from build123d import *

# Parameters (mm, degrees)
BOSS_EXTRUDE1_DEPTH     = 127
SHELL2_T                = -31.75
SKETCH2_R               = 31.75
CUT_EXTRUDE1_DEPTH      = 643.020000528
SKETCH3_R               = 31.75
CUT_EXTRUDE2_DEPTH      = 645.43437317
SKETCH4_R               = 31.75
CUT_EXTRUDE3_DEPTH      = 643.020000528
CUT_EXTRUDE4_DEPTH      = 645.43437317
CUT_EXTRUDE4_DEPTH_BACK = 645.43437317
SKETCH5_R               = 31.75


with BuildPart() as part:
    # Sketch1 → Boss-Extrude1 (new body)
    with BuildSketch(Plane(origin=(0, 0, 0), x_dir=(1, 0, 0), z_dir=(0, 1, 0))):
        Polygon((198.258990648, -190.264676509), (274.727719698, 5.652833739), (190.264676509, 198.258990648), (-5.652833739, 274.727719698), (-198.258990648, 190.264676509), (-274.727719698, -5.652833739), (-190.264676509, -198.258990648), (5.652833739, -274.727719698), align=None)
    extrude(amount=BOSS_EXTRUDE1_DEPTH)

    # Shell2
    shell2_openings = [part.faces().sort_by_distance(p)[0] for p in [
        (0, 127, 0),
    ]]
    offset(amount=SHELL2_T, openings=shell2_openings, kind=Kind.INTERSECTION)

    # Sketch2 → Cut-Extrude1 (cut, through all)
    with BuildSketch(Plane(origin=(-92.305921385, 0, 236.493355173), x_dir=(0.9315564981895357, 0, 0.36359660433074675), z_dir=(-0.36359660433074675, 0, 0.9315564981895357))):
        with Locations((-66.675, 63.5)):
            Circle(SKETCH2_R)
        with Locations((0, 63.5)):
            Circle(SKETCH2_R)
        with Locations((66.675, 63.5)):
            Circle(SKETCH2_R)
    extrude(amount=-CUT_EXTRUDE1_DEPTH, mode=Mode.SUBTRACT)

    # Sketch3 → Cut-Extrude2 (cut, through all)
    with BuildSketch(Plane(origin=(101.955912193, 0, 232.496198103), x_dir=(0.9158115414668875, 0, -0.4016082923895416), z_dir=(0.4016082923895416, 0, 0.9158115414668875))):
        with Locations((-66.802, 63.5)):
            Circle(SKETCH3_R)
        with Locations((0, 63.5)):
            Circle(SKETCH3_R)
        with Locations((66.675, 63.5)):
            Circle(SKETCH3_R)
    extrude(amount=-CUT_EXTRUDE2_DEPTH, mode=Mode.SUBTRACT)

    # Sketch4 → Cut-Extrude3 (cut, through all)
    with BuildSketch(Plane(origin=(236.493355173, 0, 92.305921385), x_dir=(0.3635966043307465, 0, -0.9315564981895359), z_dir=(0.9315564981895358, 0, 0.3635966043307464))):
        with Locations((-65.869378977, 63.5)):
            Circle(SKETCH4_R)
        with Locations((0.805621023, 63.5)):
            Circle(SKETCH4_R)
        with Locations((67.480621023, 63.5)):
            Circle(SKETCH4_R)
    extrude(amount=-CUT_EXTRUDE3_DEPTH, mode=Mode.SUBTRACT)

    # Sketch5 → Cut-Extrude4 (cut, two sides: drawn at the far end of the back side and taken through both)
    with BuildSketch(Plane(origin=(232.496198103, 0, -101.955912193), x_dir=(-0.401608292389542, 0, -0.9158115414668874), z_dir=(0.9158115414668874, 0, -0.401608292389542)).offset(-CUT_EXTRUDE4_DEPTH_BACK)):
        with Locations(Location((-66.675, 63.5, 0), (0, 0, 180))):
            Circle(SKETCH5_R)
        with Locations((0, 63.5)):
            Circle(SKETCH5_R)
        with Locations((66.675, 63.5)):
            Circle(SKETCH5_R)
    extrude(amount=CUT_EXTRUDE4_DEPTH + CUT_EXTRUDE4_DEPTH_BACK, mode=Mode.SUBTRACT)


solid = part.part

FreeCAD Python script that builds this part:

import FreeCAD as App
import Part
import Sketcher

V = App.Vector
Q = App.Units.Quantity


def faces_at(feature, points):
    """Names of the faces that lie closest to the given points."""
    faces = feature.Shape.Faces
    near = lambda p: min(range(len(faces)), key=lambda i: faces[i].distToShape(Part.Vertex(*p))[0])
    return sorted({f"Face{near(p) + 1}" for p in points})


def add_polygon(sketch, points):
    """Adds a closed chain of lines whose ends are joined by coincident constraints."""
    first, n = sketch.GeometryCount, len(points)
    for a, b in zip(points, points[1:] + points[:1]):
        sketch.addGeometry(Part.LineSegment(App.Vector(*a, 0), App.Vector(*b, 0)), False)
    for i in range(n):
        sketch.addConstraint(Sketcher.Constraint("Coincident", first + i, 2, first + (i + 1) % n, 1))

doc = App.newDocument("Part")
body = doc.addObject("PartDesign::Body", "Body")

# Sketch on XZ plane
sketch1 = body.newObject("Sketcher::SketchObject", "Sketch")
sketch1.AttachmentSupport = (doc.getObject("XZ_Plane"), [""])
sketch1.MapMode = "FlatFace"
add_polygon(sketch1, [(198, 190), (275, -6), (190, -198), (-6, -275), (-198, -190), (-275, 6), (-190, 198), (6, 275)])  # lines 0-7
sketch1.addConstraint([
    Sketcher.Constraint("Symmetric", 0, 2, 4, 2, -1, 1),
    Sketcher.Constraint("Symmetric", 1, 2, 5, 2, -1, 1),
    Sketcher.Constraint("Symmetric", 2, 2, 6, 2, -1, 1),
    Sketcher.Constraint("Symmetric", 3, 2, 7, 2, -1, 1),
    Sketcher.Constraint("Perpendicular", 0, 2),
    Sketcher.Constraint("Perpendicular", 1, 3),
    Sketcher.Constraint("Equal", 0, 1),
    Sketcher.Constraint("Equal", 1, 2),
    Sketcher.Constraint("Equal", 2, 3),
    Sketcher.Constraint("Distance", 0, Q("8.28 in")),
    Sketcher.Constraint("DistanceX", -1, 1, 0, 2, Q("274.72772 mm")),
    Sketcher.Constraint("DistanceY", 1, 2, -1, 1, Q("198.258991 mm")),
])
pad1 = body.newObject("PartDesign::Pad", "Pad")
pad1.Profile = sketch1
pad1.Length = Q("5 in")
pad1.Reversed = True
doc.recompute()

thickness = body.newObject("PartDesign::Thickness", "Thickness")
thickness.Base = (pad1, faces_at(pad1, [(0, 127, 0)]))
thickness.Value = Q("1.25 in")
thickness.Reversed = True
thickness.Join = "Intersection"

# Sketch on an angled plane
sketch2 = body.newObject("Sketcher::SketchObject", "Sketch001")
sketch2.Placement = App.Placement(V(-92.305921, 0, 236.493355), App.Rotation(V(0.931556498, 0, 0.363596604), V(0, 0.999999999, 0), V(-0.363596604, 0, 0.931556498), "ZXY"))
sketch2.addGeometry([
    Part.Circle(V(-67, 63, 0), V(0, 0, 1), 32),
    Part.Circle(V(0, 63, 0), V(0, 0, 1), 32),
    Part.Circle(V(67, 63, 0), V(0, 0, 1), 32),
], False)
sketch2.addConstraint([
    Sketcher.Constraint("Equal", 0, 1),
    Sketcher.Constraint("Equal", 1, 2),
    Sketcher.Constraint("Symmetric", 0, 3, 2, 3, -2),
    Sketcher.Constraint("PointOnObject", 1, 3, -2),
    Sketcher.Constraint("Horizontal", 0, 3, 1, 3),
    Sketcher.Constraint("Diameter", 0, Q("2.5 in")),
    Sketcher.Constraint("DistanceY", -1, 1, 0, 3, Q("2.5 in")),
    Sketcher.Constraint("DistanceX", 0, 3, 2, 3, Q("5.25 in")),
])
pocket1 = body.newObject("PartDesign::Pocket", "Pocket")
pocket1.Profile = sketch2
pocket1.Type = "ThroughAll"

# Sketch on an angled plane
sketch3 = body.newObject("Sketcher::SketchObject", "Sketch002")
sketch3.Placement = App.Placement(V(101.955912, 0, 232.496198), App.Rotation(V(0.915811541, 0, -0.401608292), V(0, 0.999999999, 0), V(0.401608292, 0, 0.915811541), "ZXY"))
sketch3.addGeometry([
    Part.Circle(V(-67, 63, 0), V(0, 0, 1), 32),
    Part.Circle(V(0, 63, 0), V(0, 0, 1), 32),
    Part.Circle(V(67, 63, 0), V(0, 0, 1), 32),
], False)
sketch3.addConstraint([
    Sketcher.Constraint("Equal", 0, 1),
    Sketcher.Constraint("Equal", 1, 2),
    Sketcher.Constraint("PointOnObject", 1, 3, -2),
    Sketcher.Constraint("Horizontal", 0, 3, 1, 3),
    Sketcher.Constraint("Horizontal", 1, 3, 2, 3),
    Sketcher.Constraint("Diameter", 0, Q("2.5 in")),
    Sketcher.Constraint("DistanceY", -1, 1, 0, 3, Q("2.5 in")),
    Sketcher.Constraint("DistanceX", 0, 3, -1, 1, Q("2.63 in")),
    Sketcher.Constraint("DistanceX", -1, 1, 2, 3, Q("2.625 in")),
])
pocket2 = body.newObject("PartDesign::Pocket", "Pocket001")
pocket2.Profile = sketch3
pocket2.Type = "ThroughAll"

# Sketch on an angled plane
sketch4 = body.newObject("Sketcher::SketchObject", "Sketch003")
sketch4.Placement = App.Placement(V(236.493355, 0, 92.305921), App.Rotation(V(0.363596604, 0, -0.931556498), V(0, 0.999999999, 0), V(0.931556498, 0, 0.363596604), "ZXY"))
sketch4.addGeometry([
    Part.Circle(V(-66, 63, 0), V(0, 0, 1), 32),
    Part.Circle(V(1, 63, 0), V(0, 0, 1), 32),
    Part.Circle(V(67, 63, 0), V(0, 0, 1), 32),
], False)
sketch4.addConstraint([
    Sketcher.Constraint("Equal", 0, 1),
    Sketcher.Constraint("Equal", 1, 2),
    Sketcher.Constraint("Horizontal", 0, 3, 1, 3),
    Sketcher.Constraint("Horizontal", 1, 3, 2, 3),
    Sketcher.Constraint("Diameter", 0, Q("2.5 in")),
    Sketcher.Constraint("DistanceY", -1, 1, 0, 3, Q("2.5 in")),
    Sketcher.Constraint("DistanceX", 0, 3, 2, 3, Q("5.25 in")),
    Sketcher.Constraint("DistanceX", 0, 3, 1, 3, Q("2.625 in")),
    Sketcher.Constraint("DistanceX", 0, 3, -1, 1, Q("65.869379 mm")),
])
pocket3 = body.newObject("PartDesign::Pocket", "Pocket002")
pocket3.Profile = sketch4
pocket3.Type = "ThroughAll"

# Sketch on an angled plane
sketch5 = body.newObject("Sketcher::SketchObject", "Sketch004")
sketch5.Placement = App.Placement(V(232.496198, 0, -101.955912), App.Rotation(V(-0.401608292, 0, -0.915811541), V(0, 0.999999999, 0), V(0.915811541, 0, -0.401608292), "ZXY"))
sketch5.addGeometry([
    Part.Circle(V(-67, 63, 0), V(0, 0, 1), 32),
    Part.Circle(V(0, 63, 0), V(0, 0, 1), 32),
    Part.Circle(V(67, 63, 0), V(0, 0, 1), 32),
], False)
sketch5.addConstraint([
    Sketcher.Constraint("Equal", 0, 1),
    Sketcher.Constraint("Equal", 1, 2),
    Sketcher.Constraint("Symmetric", 0, 3, 2, 3, -2),
    Sketcher.Constraint("PointOnObject", 1, 3, -2),
    Sketcher.Constraint("Horizontal", 0, 3, 1, 3),
    Sketcher.Constraint("Diameter", 0, Q("2.5 in")),
    Sketcher.Constraint("DistanceY", -1, 1, 0, 3, Q("2.5 in")),
    Sketcher.Constraint("DistanceX", 0, 3, 2, 3, Q("5.25 in")),
])
pocket4 = body.newObject("PartDesign::Pocket", "Pocket003")
pocket4.Profile = sketch5
pocket4.Type = "ThroughAll"
pocket4.Midplane = True

doc.recompute()
